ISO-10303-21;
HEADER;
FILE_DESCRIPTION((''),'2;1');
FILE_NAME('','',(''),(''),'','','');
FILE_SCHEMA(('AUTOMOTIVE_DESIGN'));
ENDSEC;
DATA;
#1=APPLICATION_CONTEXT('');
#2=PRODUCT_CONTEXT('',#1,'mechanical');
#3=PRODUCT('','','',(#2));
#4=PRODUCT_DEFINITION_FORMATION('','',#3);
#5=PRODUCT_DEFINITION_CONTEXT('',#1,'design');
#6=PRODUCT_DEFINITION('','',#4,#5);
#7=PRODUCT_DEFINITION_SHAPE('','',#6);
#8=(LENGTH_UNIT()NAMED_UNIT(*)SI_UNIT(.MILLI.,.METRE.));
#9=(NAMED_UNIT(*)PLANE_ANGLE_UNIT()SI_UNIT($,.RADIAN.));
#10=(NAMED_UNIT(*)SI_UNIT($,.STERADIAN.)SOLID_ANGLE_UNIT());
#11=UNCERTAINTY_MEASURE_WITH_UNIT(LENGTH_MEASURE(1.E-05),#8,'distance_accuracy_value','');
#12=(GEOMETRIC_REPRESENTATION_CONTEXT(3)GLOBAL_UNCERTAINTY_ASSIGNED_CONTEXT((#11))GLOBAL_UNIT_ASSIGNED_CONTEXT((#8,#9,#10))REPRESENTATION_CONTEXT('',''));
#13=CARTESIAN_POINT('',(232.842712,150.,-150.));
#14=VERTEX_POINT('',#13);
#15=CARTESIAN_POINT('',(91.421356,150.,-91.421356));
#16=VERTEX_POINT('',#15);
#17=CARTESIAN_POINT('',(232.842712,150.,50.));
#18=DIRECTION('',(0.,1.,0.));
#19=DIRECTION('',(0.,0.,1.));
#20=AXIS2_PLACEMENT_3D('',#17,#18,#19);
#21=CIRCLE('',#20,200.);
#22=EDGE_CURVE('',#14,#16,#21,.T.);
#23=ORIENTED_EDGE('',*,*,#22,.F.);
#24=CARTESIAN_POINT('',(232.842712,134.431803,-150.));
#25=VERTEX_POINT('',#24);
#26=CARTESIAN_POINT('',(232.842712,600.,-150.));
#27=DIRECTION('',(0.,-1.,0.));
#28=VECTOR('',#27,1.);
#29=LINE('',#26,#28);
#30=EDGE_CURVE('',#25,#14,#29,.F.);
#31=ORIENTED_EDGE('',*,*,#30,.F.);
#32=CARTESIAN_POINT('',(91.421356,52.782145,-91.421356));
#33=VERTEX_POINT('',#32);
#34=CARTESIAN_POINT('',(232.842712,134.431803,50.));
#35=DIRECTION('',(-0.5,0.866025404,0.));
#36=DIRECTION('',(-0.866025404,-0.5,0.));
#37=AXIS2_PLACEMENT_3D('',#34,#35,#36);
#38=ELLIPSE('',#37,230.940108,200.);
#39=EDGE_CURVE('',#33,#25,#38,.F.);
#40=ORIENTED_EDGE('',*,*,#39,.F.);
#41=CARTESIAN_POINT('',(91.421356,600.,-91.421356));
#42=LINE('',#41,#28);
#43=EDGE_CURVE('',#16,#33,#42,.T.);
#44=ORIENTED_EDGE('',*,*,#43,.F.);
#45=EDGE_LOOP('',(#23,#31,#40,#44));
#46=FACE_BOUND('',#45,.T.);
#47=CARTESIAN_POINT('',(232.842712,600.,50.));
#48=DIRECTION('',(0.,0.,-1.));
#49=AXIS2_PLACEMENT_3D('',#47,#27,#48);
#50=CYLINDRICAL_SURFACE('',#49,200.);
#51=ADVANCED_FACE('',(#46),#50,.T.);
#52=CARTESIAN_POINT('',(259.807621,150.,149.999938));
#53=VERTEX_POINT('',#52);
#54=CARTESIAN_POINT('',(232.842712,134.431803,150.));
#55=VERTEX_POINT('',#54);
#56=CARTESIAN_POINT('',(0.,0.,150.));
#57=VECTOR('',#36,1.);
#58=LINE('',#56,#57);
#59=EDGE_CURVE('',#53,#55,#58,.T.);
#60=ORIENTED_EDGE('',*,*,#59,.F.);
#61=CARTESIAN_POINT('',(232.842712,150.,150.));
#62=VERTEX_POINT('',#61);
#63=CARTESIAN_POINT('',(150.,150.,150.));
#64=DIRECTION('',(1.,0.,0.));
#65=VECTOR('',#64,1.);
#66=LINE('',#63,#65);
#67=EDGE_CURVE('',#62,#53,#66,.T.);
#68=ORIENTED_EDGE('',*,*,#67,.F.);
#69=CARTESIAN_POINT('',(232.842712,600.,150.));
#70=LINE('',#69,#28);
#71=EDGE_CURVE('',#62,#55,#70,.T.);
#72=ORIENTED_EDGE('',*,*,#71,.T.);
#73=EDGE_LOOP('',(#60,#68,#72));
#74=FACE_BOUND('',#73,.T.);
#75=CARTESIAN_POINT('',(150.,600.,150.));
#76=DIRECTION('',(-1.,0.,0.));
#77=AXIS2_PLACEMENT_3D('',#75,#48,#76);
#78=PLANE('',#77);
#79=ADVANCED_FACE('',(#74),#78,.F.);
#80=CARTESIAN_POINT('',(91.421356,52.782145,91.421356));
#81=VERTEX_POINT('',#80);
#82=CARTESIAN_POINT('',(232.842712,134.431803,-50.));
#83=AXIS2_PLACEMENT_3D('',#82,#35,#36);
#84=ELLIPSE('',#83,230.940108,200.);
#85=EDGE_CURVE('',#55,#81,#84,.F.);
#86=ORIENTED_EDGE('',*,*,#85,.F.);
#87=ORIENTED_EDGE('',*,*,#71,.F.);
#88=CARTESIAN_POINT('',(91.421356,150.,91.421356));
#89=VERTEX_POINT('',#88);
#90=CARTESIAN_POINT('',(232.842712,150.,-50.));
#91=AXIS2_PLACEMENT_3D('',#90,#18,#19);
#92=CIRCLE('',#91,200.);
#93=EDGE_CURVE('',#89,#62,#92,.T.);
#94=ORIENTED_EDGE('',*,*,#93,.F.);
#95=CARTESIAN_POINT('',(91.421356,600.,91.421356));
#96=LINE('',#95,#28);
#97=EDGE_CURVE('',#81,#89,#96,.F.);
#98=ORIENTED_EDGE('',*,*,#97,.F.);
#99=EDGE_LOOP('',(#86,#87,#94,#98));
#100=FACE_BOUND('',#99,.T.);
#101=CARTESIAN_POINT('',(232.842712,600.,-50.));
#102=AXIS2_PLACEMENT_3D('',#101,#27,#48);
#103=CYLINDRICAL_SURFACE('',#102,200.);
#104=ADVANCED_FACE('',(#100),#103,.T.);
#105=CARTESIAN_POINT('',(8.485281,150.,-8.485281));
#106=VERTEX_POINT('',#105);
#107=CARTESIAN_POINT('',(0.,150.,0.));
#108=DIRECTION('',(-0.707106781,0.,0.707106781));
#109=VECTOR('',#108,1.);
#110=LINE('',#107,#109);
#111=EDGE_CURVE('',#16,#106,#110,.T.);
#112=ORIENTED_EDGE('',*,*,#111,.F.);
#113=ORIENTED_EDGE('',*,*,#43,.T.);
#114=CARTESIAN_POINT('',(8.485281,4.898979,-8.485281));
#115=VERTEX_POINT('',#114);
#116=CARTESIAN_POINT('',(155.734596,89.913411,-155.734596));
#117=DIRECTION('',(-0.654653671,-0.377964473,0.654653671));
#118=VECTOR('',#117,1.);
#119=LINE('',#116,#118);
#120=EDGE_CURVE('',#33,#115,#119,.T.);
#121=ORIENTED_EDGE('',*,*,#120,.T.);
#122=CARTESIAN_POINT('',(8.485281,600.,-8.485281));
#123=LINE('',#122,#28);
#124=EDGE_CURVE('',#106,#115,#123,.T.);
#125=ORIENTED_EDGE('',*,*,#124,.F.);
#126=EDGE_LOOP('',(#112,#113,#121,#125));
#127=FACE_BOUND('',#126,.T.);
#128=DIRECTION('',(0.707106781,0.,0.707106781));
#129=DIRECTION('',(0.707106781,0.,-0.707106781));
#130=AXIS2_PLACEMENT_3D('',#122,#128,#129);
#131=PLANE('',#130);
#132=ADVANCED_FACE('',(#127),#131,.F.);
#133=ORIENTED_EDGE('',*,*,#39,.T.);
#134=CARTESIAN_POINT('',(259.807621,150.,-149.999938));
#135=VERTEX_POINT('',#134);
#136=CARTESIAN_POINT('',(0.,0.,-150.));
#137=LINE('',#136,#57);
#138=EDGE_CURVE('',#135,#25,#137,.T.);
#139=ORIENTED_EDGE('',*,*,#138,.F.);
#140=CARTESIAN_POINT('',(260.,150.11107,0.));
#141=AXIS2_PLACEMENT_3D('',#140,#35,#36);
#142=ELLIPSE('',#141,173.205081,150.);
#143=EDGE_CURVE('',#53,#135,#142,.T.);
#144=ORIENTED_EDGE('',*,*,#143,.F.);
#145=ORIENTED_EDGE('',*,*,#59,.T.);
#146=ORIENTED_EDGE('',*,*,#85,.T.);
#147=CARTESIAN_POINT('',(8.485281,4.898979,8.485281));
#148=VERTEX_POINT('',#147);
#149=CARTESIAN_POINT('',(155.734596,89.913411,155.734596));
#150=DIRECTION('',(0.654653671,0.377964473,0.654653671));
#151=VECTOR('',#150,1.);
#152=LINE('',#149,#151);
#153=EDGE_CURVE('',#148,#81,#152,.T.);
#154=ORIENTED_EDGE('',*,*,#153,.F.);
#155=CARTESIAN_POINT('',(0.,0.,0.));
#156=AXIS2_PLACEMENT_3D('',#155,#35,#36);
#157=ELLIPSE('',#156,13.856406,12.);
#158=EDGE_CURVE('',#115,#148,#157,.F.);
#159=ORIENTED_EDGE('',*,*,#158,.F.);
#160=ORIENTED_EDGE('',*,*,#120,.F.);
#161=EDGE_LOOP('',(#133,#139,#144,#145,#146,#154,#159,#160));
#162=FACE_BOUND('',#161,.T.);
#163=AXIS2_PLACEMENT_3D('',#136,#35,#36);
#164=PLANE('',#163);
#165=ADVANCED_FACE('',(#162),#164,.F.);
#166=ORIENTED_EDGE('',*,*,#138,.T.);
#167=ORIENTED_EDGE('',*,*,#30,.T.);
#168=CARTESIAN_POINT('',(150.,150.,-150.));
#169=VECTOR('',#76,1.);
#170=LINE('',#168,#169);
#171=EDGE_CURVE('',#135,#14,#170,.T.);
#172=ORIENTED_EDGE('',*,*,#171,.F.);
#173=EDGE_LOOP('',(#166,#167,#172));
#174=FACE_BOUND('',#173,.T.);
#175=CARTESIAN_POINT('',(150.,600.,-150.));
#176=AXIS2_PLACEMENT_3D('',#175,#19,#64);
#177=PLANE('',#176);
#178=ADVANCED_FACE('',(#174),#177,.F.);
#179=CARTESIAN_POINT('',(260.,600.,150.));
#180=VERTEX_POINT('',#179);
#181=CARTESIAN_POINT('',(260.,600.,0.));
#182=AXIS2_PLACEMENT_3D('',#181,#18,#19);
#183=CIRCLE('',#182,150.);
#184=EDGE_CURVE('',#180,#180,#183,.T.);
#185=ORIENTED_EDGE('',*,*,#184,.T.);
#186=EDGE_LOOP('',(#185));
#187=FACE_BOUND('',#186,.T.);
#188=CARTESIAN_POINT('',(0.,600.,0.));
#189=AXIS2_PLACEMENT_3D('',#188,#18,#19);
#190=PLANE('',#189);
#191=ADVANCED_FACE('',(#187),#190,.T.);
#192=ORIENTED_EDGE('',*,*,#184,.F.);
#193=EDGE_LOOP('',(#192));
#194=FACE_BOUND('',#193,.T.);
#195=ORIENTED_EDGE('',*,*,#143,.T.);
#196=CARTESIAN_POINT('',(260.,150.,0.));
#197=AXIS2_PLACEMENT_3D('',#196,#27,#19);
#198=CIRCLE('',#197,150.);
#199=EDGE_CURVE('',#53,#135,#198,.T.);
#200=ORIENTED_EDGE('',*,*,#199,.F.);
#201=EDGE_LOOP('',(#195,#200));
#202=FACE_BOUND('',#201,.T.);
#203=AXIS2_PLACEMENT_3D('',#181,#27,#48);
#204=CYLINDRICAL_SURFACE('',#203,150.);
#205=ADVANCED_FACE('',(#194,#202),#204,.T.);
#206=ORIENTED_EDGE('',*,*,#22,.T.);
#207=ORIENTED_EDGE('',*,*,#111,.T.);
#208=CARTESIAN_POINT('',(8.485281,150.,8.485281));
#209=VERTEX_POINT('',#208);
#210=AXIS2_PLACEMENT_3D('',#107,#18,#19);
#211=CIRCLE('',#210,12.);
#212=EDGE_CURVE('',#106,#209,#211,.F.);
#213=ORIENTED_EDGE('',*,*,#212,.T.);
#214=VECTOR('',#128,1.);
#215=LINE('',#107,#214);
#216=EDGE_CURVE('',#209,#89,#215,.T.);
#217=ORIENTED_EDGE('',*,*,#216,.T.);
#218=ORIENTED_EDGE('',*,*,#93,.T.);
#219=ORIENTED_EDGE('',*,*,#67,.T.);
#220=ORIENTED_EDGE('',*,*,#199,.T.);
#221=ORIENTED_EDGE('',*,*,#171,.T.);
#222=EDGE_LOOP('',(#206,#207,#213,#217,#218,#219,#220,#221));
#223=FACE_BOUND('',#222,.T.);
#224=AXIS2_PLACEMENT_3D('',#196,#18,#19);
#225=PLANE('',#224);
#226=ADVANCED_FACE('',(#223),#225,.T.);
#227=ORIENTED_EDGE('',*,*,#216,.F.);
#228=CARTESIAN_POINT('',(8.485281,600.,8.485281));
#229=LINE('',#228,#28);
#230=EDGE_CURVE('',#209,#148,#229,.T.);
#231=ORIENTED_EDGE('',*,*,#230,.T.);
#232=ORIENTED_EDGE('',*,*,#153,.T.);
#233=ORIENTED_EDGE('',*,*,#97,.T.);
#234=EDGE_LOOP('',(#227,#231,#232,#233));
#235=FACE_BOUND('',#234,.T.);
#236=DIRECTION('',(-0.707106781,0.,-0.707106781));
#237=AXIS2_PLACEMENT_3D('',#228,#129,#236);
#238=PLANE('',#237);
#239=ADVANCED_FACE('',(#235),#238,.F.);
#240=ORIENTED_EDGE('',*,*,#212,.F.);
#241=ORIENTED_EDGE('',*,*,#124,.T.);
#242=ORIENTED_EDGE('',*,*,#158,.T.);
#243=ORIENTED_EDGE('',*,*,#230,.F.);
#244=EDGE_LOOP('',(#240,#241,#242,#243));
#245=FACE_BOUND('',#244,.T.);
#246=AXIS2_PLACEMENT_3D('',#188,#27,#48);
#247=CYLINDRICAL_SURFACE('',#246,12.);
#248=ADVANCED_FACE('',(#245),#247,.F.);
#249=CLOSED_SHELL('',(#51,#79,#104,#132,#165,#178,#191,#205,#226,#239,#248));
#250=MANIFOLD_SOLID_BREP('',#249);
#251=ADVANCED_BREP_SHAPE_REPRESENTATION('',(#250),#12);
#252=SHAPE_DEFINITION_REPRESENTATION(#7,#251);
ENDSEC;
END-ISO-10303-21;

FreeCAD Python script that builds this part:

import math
import FreeCAD as App
import Part
import Sketcher
from FreeCAD import Vector
Q = App.Units.Quantity


def edges_at(feature, points):
    """Names of the edges that pass closest to the given points."""
    edges = feature.Shape.Edges
    near = lambda p: min(range(len(edges)), key=lambda i: edges[i].distToShape(Part.Vertex(*p))[0])
    return sorted({f"Edge{near(p) + 1}" for p in points})

doc = App.newDocument("Part")
body = doc.addObject("PartDesign::Body", "Body")

sketch1 = doc.addObject("Sketcher::SketchObject", "Sketch")
body.addObject(sketch1)
sketch1.AttachmentSupport = (doc.XZ_Plane, [""])
sketch1.MapMode = "FlatFace"
sketch1.addGeometry([
    Part.LineSegment(Vector(8, 8, 0), Vector(150, 150, 0)),
    Part.LineSegment(Vector(150, 150, 0), Vector(260, 150, 0)),
    Part.ArcOfCircle(Part.Circle(Vector(260, 0, 0), Vector(0, 0, 1), 150), math.radians(-90), math.radians(90)),
    Part.LineSegment(Vector(260, -150, 0), Vector(150, -150, 0)),
    Part.LineSegment(Vector(150, -150, 0), Vector(8, -8, 0)),
    Part.ArcOfCircle(Part.Circle(Vector(0, 0, 0), Vector(0, 0, 1), 12), math.radians(-45), math.radians(45)),
], False)
sketch1.addConstraint([
    Sketcher.Constraint("Coincident", 0, 2, 1, 1),
    Sketcher.Constraint("Tangent", 1, 2, 2, 2),
    Sketcher.Constraint("Tangent", 2, 1, 3, 1),
    Sketcher.Constraint("Coincident", 3, 2, 4, 1),
    Sketcher.Constraint("Coincident", 4, 2, 5, 1),
    Sketcher.Constraint("Coincident", 5, 2, 0, 1),
    Sketcher.Constraint("Horizontal", 1),
    Sketcher.Constraint("Horizontal", 3),
    Sketcher.Constraint("Coincident", 5, 3, -1, 1),
    Sketcher.Constraint("Symmetric", 0, 2, 3, 2, -1),
    Sketcher.Constraint("Perpendicular", 0, 4),
    Sketcher.Constraint("Vertical", 4, 2, 5, 2),
    Sketcher.Constraint("Radius", 2, Q("150 mm")),
    Sketcher.Constraint("Radius", 5, Q("12 mm")),
    Sketcher.Constraint("DistanceX", 1, 1, 1, 2, Q("110 mm")),
    Sketcher.Constraint("DistanceX", -1, 1, 2, 3, Q("260 mm")),
])
pad1 = doc.addObject("PartDesign::Pad", "Pad")
body.addObject(pad1)
pad1.Profile = sketch1
pad1.Length = 600
pad1.Reversed = True

sketch2 = doc.addObject("Sketcher::SketchObject", "Sketch001")
body.addObject(sketch2)
sketch2.AttachmentSupport = (doc.XY_Plane, [""])
sketch2.MapMode = "FlatFace"
sketch2.addGeometry([
    Part.LineSegment(Vector(410, 237, 0), Vector(0, 0, 0)),
    Part.LineSegment(Vector(0, 0, 0), Vector(410, 0, 0)),
    Part.LineSegment(Vector(410, 0, 0), Vector(410, 237, 0)),
], False)
sketch2.addConstraint([
    Sketcher.Constraint("Coincident", 0, 2, 1, 1),
    Sketcher.Constraint("Coincident", 1, 2, 2, 1),
    Sketcher.Constraint("Coincident", 2, 2, 0, 1),
    Sketcher.Constraint("Horizontal", 1),
    Sketcher.Constraint("Vertical", 2),
    Sketcher.Constraint("Coincident", 0, 2, -1, 1),
    Sketcher.Constraint("DistanceX", 1, 1, 1, 2, Q("410 mm")),
    Sketcher.Constraint("Angle", 0, Q("-150 deg")),
])
pocket1 = doc.addObject("PartDesign::Pocket", "Pocket")
body.addObject(pocket1)
pocket1.Profile = sketch2
pocket1.Type = "ThroughAll"
pocket1.Midplane = True

sketch3 = doc.addObject("Sketcher::SketchObject", "Sketch002")
body.addObject(sketch3)
sketch3.AttachmentSupport = (doc.XZ_Plane, [""])
sketch3.MapMode = "FlatFace"
sketch3.AttachmentOffset = App.Placement(Vector(0, 0, -150), App.Rotation())
sketch3.addGeometry([
    Part.LineSegment(Vector(150, -150, 0), Vector(0, 0, 0)),
    Part.LineSegment(Vector(0, 0, 0), Vector(150, 150, 0)),
    Part.LineSegment(Vector(150, 150, 0), Vector(260, 150, 0)),
    Part.ArcOfCircle(Part.Circle(Vector(260, 0, 0), Vector(0, 0, 1), 150), math.radians(90), math.radians(270)),
    Part.LineSegment(Vector(260, -150, 0), Vector(150, -150, 0)),
], False)
sketch3.addConstraint([
    Sketcher.Constraint("Coincident", 0, 2, 1, 1),
    Sketcher.Constraint("Coincident", 1, 2, 2, 1),
    Sketcher.Constraint("Tangent", 2, 2, 3, 1),
    Sketcher.Constraint("Tangent", 3, 2, 4, 1),
    Sketcher.Constraint("Coincident", 4, 2, 0, 1),
    Sketcher.Constraint("Horizontal", 2),
    Sketcher.Constraint("Horizontal", 4),
    Sketcher.Constraint("Coincident", 0, 2, -1, 1),
    Sketcher.Constraint("Symmetric", 1, 2, 4, 2, -1),
    Sketcher.Constraint("Perpendicular", 0, 1),
    Sketcher.Constraint("Radius", 3, Q("150 mm")),
    Sketcher.Constraint("DistanceX", 2, 1, 2, 2, Q("110 mm")),
])
pocket2 = doc.addObject("PartDesign::Pocket", "Pocket001")
body.addObject(pocket2)
pocket2.Profile = sketch3
pocket2.Length = 450
doc.recompute()

fillet = doc.addObject("PartDesign::Fillet", "Fillet")
body.addObject(fillet)
fillet.Base = (pocket2, edges_at(pocket2, [(150, 118.301, 150), (150, 118.301, -150)]))
fillet.Radius = 200

doc.recompute()
